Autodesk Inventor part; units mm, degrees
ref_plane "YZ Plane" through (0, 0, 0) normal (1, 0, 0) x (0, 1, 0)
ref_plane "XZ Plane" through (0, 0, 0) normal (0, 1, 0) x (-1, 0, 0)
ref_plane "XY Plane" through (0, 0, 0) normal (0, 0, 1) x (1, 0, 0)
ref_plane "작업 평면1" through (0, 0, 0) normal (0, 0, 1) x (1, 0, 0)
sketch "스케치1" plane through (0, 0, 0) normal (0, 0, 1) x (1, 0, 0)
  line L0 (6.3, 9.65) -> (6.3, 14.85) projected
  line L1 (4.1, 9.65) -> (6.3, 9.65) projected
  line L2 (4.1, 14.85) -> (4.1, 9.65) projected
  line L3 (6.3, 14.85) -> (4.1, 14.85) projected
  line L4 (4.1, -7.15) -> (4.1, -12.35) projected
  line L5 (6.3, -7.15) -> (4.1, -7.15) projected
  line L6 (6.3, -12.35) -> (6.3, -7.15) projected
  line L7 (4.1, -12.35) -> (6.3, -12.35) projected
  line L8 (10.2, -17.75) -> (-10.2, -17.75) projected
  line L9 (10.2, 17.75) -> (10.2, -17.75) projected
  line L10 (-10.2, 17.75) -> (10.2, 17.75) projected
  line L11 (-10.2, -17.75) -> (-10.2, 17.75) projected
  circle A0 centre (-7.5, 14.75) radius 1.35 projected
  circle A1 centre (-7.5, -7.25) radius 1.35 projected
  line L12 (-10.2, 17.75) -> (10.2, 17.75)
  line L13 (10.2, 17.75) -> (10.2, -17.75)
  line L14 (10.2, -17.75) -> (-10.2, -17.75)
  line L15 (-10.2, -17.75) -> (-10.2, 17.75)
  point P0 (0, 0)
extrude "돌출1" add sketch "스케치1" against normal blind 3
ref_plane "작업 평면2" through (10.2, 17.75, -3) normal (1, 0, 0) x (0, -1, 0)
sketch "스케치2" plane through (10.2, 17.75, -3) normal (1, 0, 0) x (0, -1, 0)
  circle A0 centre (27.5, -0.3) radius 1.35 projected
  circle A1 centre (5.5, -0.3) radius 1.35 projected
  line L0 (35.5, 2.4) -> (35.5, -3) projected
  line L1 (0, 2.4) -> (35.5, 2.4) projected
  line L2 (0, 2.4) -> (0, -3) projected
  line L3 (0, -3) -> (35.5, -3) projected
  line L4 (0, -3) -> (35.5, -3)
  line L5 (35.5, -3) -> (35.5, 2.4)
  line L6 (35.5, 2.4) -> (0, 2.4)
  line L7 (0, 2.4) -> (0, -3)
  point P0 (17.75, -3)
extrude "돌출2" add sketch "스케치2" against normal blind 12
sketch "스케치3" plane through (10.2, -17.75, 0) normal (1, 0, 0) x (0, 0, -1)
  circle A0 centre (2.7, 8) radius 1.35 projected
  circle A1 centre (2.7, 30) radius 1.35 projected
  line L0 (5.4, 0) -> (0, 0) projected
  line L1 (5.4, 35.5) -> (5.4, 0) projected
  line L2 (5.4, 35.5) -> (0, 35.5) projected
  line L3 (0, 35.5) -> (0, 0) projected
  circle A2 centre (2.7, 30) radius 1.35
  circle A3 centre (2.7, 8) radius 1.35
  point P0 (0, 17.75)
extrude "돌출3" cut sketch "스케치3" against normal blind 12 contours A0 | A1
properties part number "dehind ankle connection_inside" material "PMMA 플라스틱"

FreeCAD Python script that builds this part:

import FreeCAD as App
import Part
import Sketcher

V = App.Vector


def add_polygon(sketch, points):
    """Adds a closed chain of lines whose ends are joined by coincident constraints."""
    first, n = sketch.GeometryCount, len(points)
    for a, b in zip(points, points[1:] + points[:1]):
        sketch.addGeometry(Part.LineSegment(App.Vector(*a, 0), App.Vector(*b, 0)), False)
    for i in range(n):
        sketch.addConstraint(Sketcher.Constraint("Coincident", first + i, 2, first + (i + 1) % n, 1))

doc = App.newDocument("Part")
params = doc.addObject("Spreadsheet::Sheet", "Params")
for row, (alias, value) in enumerate([
    ("sketch1_diameter", "2.7 mm"),
    ("sketch1_width", "20.4 mm"),
    ("sketch1_width2", "2.2 mm"),
    ("sketch1_height", "35.5 mm"),
    ("sketch1_height2", "5.2 mm"),
    ("pad1_length", "3 mm"),
    ("sketch2_diameter", "2.7 mm"),
    ("sketch2_width", "35.5 mm"),
    ("sketch2_height", "5.4 mm"),
    ("pad2_length", "12 mm"),
    ("sketch3_diameter", "2.7 mm"),
    ("pocket1_length", "12 mm"),
], start=1):
    params.set(f"A{row}", alias)
    params.set(f"B{row}", "=" + value)
    params.setAlias(f"B{row}", alias)

body = doc.addObject("PartDesign::Body", "Body")

# Sketch on XY plane
sketch1 = body.newObject("Sketcher::SketchObject", "Sketch")
sketch1.AttachmentSupport = (doc.getObject("XY_Plane"), [""])
sketch1.MapMode = "FlatFace"
add_polygon(sketch1, [(-10.2, -17.8), (10.2, -17.8), (10.2, 17.8), (-10.2, 17.8)])  # lines 0-3
sketch1.addGeometry(Part.Circle(V(-7.5, -7.2, 0), V(0, 0, 1), 1.4), False)  # 4
add_polygon(sketch1, [(4.1, -12.3), (4.1, -7.2), (6.3, -7.2), (6.3, -12.3)])  # lines 5-8
sketch1.addGeometry(Part.Circle(V(-7.5, 14.8, 0), V(0, 0, 1), 1.4), False)  # 9
add_polygon(sketch1, [(6.3, 14.8), (6.3, 9.7), (4.1, 9.7), (4.1, 14.8)])  # lines 10-13
sketch1.addConstraint([
    Sketcher.Constraint("Horizontal", 0),
    Sketcher.Constraint("Vertical", 1),
    Sketcher.Constraint("Horizontal", 2),
    Sketcher.Constraint("Vertical", 3),
    Sketcher.Constraint("Vertical", 5),
    Sketcher.Constraint("Horizontal", 6),
    Sketcher.Constraint("Vertical", 7),
    Sketcher.Constraint("Horizontal", 8),
    Sketcher.Constraint("Vertical", 10),
    Sketcher.Constraint("Horizontal", 11),
    Sketcher.Constraint("Vertical", 12),
    Sketcher.Constraint("Horizontal", 13),
    Sketcher.Constraint("Equal", 4, 9),
    Sketcher.Constraint("Symmetric", 0, 2, 2, 2, -1, 1),
    Sketcher.Constraint("Vertical", 4, 3, 9, 3),
    Sketcher.Constraint("Vertical", 7, 2, 10, 2),
    Sketcher.Constraint("Vertical", 8, 2, 11, 2),
    Sketcher.Constraint("Equal", 7, 10),
    Sketcher.Constraint("Diameter", 4, 2.7),
    Sketcher.Constraint("DistanceX", 0, 1, 0, 2, 20.4),
    Sketcher.Constraint("DistanceX", 6, 1, 6, 2, 2.2),
    Sketcher.Constraint("DistanceY", 1, 1, 1, 2, 35.5),
    Sketcher.Constraint("DistanceY", 5, 1, 5, 2, 5.2),
    Sketcher.Constraint("DistanceY", 4, 3, 9, 3, 22.0),
    Sketcher.Constraint("DistanceY", 9, 3, 1, 2, 3.0),
    Sketcher.Constraint("DistanceX", 4, 3, -1, 1, 7.5),
    Sketcher.Constraint("DistanceX", -1, 1, 5, 2, 4.1),
    Sketcher.Constraint("DistanceY", 4, 3, 5, 2, 0.1),
    Sketcher.Constraint("DistanceY", 10, 2, 1, 2, 8.1),
])
sketch1.setExpression("Constraints[30]", "Params.sketch1_diameter")
sketch1.setExpression("Constraints[31]", "Params.sketch1_width")
sketch1.setExpression("Constraints[32]", "Params.sketch1_width2")
sketch1.setExpression("Constraints[33]", "Params.sketch1_height")
sketch1.setExpression("Constraints[34]", "Params.sketch1_height2")
pad1 = body.newObject("PartDesign::Pad", "Pad")
pad1.Profile = sketch1
pad1.setExpression("Length", "Params.pad1_length")
pad1.Reversed = True

# Sketch on YZ plane
sketch2 = body.newObject("Sketcher::SketchObject", "Sketch001")
sketch2.AttachmentSupport = (doc.getObject("YZ_Plane"), [""])
sketch2.MapMode = "FlatFace"
sketch2.AttachmentOffset = App.Placement(V(0, 0, 10.2), App.Rotation())
add_polygon(sketch2, [(-17.8, 0), (-17.8, -5.4), (17.8, -5.4), (17.8, 0)])  # lines 0-3
sketch2.addGeometry(Part.Circle(V(12.2, -2.7, 0), V(0, 0, 1), 1.4), False)  # 4
sketch2.addGeometry(Part.Circle(V(-9.8, -2.7, 0), V(0, 0, 1), 1.4), False)  # 5
sketch2.addConstraint([
    Sketcher.Constraint("Vertical", 0),
    Sketcher.Constraint("Horizontal", 1),
    Sketcher.Constraint("Vertical", 2),
    Sketcher.Constraint("Horizontal", 3),
    Sketcher.Constraint("Equal", 4, 5),
    Sketcher.Constraint("Symmetric", 2, 2, 3, 2, -1, 1),
    Sketcher.Constraint("Horizontal", 4, 3, 5, 3),
    Sketcher.Constraint("Diameter", 4, 2.7),
    Sketcher.Constraint("DistanceX", 1, 1, 1, 2, 35.5),
    Sketcher.Constraint("DistanceY", 0, 2, 0, 1, 5.4),
    Sketcher.Constraint("DistanceX", 5, 3, 4, 3, 22.0),
    Sketcher.Constraint("DistanceX", 0, 2, 5, 3, 8.0),
    Sketcher.Constraint("DistanceY", 4, 3, -1, 1, 2.7),
])
sketch2.setExpression("Constraints[11]", "Params.sketch2_diameter")
sketch2.setExpression("Constraints[12]", "Params.sketch2_width")
sketch2.setExpression("Constraints[13]", "Params.sketch2_height")
pad2 = body.newObject("PartDesign::Pad", "Pad001")
pad2.Profile = sketch2
pad2.setExpression("Length", "Params.pad2_length")
pad2.Reversed = True

# Sketch on YZ plane
sketch3 = body.newObject("Sketcher::SketchObject", "Sketch002")
sketch3.AttachmentSupport = (doc.getObject("YZ_Plane"), [""])
sketch3.MapMode = "FlatFace"
sketch3.AttachmentOffset = App.Placement(V(0, 0, 10.2), App.Rotation())
sketch3.addGeometry([
    Part.Circle(V(-9.8, -2.7, 0), V(0, 0, 1), 1.4),
    Part.Circle(V(12.2, -2.7, 0), V(0, 0, 1), 1.4),
], False)
sketch3.addConstraint([
    Sketcher.Constraint("Equal", 0, 1),
    Sketcher.Constraint("Horizontal", 0, 3, 1, 3),
    Sketcher.Constraint("Diameter", 0, 2.7),
    Sketcher.Constraint("DistanceX", 0, 3, 1, 3, 22.0),
    Sketcher.Constraint("DistanceY", 0, 3, -1, 1, 2.7),
    Sketcher.Constraint("DistanceX", 0, 3, -1, 1, 9.75),
])
sketch3.setExpression("Constraints[2]", "Params.sketch3_diameter")
pocket1 = body.newObject("PartDesign::Pocket", "Pocket")
pocket1.Profile = sketch3
pocket1.setExpression("Length", "Params.pocket1_length")

doc.recompute()
